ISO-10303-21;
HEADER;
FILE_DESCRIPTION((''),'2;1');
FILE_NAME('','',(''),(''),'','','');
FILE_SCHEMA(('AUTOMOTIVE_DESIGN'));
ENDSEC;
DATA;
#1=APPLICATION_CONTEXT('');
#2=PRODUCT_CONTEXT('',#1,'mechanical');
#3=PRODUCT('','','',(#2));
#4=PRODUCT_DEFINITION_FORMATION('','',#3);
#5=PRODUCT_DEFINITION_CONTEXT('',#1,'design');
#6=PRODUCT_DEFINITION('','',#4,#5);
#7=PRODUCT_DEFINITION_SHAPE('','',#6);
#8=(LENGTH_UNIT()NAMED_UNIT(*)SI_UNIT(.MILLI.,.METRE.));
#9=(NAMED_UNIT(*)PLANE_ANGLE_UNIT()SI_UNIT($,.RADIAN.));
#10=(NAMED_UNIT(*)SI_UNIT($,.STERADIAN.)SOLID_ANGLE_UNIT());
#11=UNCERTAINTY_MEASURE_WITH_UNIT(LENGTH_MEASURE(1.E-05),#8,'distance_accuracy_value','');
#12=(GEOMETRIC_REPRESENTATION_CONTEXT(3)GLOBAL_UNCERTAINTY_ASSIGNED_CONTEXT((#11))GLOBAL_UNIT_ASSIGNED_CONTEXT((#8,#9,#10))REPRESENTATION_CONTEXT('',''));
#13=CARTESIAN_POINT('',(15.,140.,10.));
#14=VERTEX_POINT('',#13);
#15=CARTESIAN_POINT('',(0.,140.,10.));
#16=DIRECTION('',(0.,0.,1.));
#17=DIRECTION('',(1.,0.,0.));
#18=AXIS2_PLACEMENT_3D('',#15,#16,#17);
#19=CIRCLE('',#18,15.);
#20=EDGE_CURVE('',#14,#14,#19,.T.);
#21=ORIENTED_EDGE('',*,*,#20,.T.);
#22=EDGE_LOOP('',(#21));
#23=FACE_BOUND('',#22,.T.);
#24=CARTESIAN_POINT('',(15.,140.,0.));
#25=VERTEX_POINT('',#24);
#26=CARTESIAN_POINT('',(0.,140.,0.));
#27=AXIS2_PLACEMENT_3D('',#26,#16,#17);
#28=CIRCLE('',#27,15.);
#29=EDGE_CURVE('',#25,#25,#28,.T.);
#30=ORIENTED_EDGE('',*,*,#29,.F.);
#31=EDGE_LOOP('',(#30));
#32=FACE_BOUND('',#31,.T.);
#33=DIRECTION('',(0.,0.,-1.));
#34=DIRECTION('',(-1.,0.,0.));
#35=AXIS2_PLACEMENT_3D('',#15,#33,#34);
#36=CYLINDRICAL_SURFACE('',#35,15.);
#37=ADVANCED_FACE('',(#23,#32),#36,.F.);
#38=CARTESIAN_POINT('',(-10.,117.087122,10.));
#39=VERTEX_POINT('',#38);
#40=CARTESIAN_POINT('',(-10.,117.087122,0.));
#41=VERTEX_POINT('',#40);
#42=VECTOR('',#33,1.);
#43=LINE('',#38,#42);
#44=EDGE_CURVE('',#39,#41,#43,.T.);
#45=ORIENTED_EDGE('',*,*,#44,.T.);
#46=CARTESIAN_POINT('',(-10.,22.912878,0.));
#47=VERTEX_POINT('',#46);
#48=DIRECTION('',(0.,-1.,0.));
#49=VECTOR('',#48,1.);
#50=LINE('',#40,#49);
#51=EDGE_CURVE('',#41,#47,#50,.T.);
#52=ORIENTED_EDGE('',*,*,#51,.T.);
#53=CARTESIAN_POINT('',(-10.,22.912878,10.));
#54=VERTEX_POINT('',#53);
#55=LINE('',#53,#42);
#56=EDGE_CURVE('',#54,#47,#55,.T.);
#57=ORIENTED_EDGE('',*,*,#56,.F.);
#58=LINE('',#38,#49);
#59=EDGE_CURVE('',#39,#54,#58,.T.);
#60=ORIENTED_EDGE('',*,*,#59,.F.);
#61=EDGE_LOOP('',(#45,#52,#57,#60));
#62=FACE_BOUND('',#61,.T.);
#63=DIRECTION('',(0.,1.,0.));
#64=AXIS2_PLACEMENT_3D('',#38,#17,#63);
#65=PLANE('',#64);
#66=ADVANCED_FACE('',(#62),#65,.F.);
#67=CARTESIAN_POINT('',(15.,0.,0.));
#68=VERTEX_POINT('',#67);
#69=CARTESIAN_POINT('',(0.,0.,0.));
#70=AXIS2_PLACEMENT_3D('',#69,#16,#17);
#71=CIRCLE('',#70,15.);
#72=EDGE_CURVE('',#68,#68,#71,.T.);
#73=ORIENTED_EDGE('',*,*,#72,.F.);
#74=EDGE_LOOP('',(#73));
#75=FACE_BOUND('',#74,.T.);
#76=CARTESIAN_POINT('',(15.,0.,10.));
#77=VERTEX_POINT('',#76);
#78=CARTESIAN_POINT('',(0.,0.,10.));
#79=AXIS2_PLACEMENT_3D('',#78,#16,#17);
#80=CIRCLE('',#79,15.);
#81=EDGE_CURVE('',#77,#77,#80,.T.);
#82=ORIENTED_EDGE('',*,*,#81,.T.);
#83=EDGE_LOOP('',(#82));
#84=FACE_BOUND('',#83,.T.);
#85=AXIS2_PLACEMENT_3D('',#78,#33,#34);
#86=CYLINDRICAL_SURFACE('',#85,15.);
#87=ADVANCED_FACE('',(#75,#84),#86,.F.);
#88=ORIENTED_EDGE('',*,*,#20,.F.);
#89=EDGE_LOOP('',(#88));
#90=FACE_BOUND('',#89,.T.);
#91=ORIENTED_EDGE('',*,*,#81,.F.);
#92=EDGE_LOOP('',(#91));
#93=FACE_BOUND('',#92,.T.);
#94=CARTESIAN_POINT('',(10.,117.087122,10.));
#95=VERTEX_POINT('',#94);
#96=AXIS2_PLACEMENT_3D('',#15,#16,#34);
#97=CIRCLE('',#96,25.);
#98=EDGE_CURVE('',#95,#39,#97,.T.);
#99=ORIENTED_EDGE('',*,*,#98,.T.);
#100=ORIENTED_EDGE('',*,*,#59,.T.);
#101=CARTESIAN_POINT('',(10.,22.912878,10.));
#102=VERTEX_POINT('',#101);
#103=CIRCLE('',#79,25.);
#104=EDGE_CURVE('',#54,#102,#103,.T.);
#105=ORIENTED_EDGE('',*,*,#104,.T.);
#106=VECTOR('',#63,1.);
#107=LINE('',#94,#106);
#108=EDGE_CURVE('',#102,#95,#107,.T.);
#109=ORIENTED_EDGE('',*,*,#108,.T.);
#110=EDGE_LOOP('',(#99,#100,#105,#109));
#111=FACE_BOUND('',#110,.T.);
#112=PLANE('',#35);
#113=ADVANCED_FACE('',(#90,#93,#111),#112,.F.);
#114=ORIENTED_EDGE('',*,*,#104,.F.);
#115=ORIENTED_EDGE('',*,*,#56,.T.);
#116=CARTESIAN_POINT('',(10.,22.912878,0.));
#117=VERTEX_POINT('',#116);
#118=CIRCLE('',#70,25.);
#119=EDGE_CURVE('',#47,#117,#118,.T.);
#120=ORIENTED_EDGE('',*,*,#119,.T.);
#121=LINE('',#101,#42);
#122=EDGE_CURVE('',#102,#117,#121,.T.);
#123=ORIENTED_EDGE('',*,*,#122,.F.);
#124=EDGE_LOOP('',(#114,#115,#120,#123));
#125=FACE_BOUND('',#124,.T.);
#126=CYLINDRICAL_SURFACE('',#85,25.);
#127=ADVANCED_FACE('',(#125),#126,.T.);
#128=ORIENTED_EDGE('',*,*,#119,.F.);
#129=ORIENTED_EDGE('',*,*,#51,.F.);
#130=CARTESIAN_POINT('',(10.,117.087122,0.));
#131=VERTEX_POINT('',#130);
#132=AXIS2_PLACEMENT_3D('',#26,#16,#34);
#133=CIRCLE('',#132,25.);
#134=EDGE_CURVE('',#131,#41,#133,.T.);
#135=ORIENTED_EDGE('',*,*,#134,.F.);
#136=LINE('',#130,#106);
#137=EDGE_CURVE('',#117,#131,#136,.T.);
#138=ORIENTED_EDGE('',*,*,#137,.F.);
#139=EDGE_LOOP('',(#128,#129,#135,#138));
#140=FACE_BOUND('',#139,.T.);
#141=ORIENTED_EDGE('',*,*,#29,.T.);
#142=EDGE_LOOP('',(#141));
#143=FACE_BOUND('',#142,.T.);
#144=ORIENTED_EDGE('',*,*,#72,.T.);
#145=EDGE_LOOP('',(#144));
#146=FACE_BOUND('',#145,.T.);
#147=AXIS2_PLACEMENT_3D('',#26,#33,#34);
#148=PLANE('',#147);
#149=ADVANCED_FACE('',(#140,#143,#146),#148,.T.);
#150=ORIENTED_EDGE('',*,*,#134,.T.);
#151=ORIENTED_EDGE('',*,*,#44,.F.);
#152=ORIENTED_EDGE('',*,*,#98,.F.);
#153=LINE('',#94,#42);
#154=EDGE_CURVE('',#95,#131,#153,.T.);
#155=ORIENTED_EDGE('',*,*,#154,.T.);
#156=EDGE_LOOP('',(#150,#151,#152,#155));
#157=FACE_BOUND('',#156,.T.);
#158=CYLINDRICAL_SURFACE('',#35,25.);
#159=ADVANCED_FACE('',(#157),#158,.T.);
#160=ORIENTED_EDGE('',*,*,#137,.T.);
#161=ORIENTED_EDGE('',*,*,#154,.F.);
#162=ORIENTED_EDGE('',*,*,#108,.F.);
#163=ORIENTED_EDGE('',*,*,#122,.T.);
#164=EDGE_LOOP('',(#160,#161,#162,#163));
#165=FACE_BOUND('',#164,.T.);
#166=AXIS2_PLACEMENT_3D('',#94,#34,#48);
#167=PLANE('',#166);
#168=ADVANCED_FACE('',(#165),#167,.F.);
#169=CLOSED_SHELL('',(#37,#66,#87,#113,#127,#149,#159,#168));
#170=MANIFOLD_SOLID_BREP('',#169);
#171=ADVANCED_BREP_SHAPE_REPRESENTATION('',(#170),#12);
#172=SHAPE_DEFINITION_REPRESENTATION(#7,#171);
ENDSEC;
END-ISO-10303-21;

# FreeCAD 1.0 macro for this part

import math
import FreeCAD as App
import Part
import Sketcher
Q = App.Units.Quantity

doc = App.newDocument("Part")
body = doc.addObject("PartDesign::Body", "Body")

# Sketch on XY plane
sketch1 = body.newObject("Sketcher::SketchObject", "Sketch")
sketch1.AttachmentSupport = (doc.getObject("XY_Plane"), [""])
sketch1.MapMode = "FlatFace"
sketch1.addGeometry(Part.LineSegment(App.Vector(-10, 117, 0), App.Vector(-10, 23, 0)), False)
sketch1.addGeometry(Part.ArcOfCircle(Part.Circle(App.Vector(0, 0, 0), App.Vector(0, 0, 1), 25), math.radians(114), math.radians(426)), False)
sketch1.addGeometry(Part.LineSegment(App.Vector(10, 23, 0), App.Vector(10, 117, 0)), False)
sketch1.addGeometry(Part.ArcOfCircle(Part.Circle(App.Vector(0, 140, 0), App.Vector(0, 0, 1), 25), math.radians(-66), math.radians(246)), False)
sketch1.addGeometry(Part.Circle(App.Vector(0, 0, 0), App.Vector(0, 0, 1), 15), False)
sketch1.addGeometry(Part.Circle(App.Vector(0, 140, 0), App.Vector(0, 0, 1), 15), False)
sketch1.addConstraint(Sketcher.Constraint("Coincident", 0, 2, 1, 1))
sketch1.addConstraint(Sketcher.Constraint("Coincident", 1, 2, 2, 1))
sketch1.addConstraint(Sketcher.Constraint("Coincident", 2, 2, 3, 1))
sketch1.addConstraint(Sketcher.Constraint("Coincident", 3, 2, 0, 1))
sketch1.addConstraint(Sketcher.Constraint("Vertical", 0))
sketch1.addConstraint(Sketcher.Constraint("Vertical", 2))
sketch1.addConstraint(Sketcher.Constraint("Coincident", 1, 3, -1, 1))
sketch1.addConstraint(Sketcher.Constraint("Coincident", 4, 3, -1, 1))
sketch1.addConstraint(Sketcher.Constraint("Coincident", 5, 3, 3, 3))
sketch1.addConstraint(Sketcher.Constraint("Equal", 1, 3))
sketch1.addConstraint(Sketcher.Constraint("Equal", 4, 5))
sketch1.addConstraint(Sketcher.Constraint("Symmetric", 2, 2, 3, 2, -2))
sketch1.addConstraint(Sketcher.Constraint("Diameter", 4, Q("30 mm")))
sketch1.addConstraint(Sketcher.Constraint("Radius", 1, Q("25 mm")))
sketch1.addConstraint(Sketcher.Constraint("DistanceY", -1, 1, 3, 3, Q("140 mm")))
sketch1.addConstraint(Sketcher.Constraint("DistanceX", 0, 2, -1, 1, Q("10 mm")))
pad1 = body.newObject("PartDesign::Pad", "Pad")
pad1.Profile = sketch1
pad1.Length = 10

doc.recompute()
